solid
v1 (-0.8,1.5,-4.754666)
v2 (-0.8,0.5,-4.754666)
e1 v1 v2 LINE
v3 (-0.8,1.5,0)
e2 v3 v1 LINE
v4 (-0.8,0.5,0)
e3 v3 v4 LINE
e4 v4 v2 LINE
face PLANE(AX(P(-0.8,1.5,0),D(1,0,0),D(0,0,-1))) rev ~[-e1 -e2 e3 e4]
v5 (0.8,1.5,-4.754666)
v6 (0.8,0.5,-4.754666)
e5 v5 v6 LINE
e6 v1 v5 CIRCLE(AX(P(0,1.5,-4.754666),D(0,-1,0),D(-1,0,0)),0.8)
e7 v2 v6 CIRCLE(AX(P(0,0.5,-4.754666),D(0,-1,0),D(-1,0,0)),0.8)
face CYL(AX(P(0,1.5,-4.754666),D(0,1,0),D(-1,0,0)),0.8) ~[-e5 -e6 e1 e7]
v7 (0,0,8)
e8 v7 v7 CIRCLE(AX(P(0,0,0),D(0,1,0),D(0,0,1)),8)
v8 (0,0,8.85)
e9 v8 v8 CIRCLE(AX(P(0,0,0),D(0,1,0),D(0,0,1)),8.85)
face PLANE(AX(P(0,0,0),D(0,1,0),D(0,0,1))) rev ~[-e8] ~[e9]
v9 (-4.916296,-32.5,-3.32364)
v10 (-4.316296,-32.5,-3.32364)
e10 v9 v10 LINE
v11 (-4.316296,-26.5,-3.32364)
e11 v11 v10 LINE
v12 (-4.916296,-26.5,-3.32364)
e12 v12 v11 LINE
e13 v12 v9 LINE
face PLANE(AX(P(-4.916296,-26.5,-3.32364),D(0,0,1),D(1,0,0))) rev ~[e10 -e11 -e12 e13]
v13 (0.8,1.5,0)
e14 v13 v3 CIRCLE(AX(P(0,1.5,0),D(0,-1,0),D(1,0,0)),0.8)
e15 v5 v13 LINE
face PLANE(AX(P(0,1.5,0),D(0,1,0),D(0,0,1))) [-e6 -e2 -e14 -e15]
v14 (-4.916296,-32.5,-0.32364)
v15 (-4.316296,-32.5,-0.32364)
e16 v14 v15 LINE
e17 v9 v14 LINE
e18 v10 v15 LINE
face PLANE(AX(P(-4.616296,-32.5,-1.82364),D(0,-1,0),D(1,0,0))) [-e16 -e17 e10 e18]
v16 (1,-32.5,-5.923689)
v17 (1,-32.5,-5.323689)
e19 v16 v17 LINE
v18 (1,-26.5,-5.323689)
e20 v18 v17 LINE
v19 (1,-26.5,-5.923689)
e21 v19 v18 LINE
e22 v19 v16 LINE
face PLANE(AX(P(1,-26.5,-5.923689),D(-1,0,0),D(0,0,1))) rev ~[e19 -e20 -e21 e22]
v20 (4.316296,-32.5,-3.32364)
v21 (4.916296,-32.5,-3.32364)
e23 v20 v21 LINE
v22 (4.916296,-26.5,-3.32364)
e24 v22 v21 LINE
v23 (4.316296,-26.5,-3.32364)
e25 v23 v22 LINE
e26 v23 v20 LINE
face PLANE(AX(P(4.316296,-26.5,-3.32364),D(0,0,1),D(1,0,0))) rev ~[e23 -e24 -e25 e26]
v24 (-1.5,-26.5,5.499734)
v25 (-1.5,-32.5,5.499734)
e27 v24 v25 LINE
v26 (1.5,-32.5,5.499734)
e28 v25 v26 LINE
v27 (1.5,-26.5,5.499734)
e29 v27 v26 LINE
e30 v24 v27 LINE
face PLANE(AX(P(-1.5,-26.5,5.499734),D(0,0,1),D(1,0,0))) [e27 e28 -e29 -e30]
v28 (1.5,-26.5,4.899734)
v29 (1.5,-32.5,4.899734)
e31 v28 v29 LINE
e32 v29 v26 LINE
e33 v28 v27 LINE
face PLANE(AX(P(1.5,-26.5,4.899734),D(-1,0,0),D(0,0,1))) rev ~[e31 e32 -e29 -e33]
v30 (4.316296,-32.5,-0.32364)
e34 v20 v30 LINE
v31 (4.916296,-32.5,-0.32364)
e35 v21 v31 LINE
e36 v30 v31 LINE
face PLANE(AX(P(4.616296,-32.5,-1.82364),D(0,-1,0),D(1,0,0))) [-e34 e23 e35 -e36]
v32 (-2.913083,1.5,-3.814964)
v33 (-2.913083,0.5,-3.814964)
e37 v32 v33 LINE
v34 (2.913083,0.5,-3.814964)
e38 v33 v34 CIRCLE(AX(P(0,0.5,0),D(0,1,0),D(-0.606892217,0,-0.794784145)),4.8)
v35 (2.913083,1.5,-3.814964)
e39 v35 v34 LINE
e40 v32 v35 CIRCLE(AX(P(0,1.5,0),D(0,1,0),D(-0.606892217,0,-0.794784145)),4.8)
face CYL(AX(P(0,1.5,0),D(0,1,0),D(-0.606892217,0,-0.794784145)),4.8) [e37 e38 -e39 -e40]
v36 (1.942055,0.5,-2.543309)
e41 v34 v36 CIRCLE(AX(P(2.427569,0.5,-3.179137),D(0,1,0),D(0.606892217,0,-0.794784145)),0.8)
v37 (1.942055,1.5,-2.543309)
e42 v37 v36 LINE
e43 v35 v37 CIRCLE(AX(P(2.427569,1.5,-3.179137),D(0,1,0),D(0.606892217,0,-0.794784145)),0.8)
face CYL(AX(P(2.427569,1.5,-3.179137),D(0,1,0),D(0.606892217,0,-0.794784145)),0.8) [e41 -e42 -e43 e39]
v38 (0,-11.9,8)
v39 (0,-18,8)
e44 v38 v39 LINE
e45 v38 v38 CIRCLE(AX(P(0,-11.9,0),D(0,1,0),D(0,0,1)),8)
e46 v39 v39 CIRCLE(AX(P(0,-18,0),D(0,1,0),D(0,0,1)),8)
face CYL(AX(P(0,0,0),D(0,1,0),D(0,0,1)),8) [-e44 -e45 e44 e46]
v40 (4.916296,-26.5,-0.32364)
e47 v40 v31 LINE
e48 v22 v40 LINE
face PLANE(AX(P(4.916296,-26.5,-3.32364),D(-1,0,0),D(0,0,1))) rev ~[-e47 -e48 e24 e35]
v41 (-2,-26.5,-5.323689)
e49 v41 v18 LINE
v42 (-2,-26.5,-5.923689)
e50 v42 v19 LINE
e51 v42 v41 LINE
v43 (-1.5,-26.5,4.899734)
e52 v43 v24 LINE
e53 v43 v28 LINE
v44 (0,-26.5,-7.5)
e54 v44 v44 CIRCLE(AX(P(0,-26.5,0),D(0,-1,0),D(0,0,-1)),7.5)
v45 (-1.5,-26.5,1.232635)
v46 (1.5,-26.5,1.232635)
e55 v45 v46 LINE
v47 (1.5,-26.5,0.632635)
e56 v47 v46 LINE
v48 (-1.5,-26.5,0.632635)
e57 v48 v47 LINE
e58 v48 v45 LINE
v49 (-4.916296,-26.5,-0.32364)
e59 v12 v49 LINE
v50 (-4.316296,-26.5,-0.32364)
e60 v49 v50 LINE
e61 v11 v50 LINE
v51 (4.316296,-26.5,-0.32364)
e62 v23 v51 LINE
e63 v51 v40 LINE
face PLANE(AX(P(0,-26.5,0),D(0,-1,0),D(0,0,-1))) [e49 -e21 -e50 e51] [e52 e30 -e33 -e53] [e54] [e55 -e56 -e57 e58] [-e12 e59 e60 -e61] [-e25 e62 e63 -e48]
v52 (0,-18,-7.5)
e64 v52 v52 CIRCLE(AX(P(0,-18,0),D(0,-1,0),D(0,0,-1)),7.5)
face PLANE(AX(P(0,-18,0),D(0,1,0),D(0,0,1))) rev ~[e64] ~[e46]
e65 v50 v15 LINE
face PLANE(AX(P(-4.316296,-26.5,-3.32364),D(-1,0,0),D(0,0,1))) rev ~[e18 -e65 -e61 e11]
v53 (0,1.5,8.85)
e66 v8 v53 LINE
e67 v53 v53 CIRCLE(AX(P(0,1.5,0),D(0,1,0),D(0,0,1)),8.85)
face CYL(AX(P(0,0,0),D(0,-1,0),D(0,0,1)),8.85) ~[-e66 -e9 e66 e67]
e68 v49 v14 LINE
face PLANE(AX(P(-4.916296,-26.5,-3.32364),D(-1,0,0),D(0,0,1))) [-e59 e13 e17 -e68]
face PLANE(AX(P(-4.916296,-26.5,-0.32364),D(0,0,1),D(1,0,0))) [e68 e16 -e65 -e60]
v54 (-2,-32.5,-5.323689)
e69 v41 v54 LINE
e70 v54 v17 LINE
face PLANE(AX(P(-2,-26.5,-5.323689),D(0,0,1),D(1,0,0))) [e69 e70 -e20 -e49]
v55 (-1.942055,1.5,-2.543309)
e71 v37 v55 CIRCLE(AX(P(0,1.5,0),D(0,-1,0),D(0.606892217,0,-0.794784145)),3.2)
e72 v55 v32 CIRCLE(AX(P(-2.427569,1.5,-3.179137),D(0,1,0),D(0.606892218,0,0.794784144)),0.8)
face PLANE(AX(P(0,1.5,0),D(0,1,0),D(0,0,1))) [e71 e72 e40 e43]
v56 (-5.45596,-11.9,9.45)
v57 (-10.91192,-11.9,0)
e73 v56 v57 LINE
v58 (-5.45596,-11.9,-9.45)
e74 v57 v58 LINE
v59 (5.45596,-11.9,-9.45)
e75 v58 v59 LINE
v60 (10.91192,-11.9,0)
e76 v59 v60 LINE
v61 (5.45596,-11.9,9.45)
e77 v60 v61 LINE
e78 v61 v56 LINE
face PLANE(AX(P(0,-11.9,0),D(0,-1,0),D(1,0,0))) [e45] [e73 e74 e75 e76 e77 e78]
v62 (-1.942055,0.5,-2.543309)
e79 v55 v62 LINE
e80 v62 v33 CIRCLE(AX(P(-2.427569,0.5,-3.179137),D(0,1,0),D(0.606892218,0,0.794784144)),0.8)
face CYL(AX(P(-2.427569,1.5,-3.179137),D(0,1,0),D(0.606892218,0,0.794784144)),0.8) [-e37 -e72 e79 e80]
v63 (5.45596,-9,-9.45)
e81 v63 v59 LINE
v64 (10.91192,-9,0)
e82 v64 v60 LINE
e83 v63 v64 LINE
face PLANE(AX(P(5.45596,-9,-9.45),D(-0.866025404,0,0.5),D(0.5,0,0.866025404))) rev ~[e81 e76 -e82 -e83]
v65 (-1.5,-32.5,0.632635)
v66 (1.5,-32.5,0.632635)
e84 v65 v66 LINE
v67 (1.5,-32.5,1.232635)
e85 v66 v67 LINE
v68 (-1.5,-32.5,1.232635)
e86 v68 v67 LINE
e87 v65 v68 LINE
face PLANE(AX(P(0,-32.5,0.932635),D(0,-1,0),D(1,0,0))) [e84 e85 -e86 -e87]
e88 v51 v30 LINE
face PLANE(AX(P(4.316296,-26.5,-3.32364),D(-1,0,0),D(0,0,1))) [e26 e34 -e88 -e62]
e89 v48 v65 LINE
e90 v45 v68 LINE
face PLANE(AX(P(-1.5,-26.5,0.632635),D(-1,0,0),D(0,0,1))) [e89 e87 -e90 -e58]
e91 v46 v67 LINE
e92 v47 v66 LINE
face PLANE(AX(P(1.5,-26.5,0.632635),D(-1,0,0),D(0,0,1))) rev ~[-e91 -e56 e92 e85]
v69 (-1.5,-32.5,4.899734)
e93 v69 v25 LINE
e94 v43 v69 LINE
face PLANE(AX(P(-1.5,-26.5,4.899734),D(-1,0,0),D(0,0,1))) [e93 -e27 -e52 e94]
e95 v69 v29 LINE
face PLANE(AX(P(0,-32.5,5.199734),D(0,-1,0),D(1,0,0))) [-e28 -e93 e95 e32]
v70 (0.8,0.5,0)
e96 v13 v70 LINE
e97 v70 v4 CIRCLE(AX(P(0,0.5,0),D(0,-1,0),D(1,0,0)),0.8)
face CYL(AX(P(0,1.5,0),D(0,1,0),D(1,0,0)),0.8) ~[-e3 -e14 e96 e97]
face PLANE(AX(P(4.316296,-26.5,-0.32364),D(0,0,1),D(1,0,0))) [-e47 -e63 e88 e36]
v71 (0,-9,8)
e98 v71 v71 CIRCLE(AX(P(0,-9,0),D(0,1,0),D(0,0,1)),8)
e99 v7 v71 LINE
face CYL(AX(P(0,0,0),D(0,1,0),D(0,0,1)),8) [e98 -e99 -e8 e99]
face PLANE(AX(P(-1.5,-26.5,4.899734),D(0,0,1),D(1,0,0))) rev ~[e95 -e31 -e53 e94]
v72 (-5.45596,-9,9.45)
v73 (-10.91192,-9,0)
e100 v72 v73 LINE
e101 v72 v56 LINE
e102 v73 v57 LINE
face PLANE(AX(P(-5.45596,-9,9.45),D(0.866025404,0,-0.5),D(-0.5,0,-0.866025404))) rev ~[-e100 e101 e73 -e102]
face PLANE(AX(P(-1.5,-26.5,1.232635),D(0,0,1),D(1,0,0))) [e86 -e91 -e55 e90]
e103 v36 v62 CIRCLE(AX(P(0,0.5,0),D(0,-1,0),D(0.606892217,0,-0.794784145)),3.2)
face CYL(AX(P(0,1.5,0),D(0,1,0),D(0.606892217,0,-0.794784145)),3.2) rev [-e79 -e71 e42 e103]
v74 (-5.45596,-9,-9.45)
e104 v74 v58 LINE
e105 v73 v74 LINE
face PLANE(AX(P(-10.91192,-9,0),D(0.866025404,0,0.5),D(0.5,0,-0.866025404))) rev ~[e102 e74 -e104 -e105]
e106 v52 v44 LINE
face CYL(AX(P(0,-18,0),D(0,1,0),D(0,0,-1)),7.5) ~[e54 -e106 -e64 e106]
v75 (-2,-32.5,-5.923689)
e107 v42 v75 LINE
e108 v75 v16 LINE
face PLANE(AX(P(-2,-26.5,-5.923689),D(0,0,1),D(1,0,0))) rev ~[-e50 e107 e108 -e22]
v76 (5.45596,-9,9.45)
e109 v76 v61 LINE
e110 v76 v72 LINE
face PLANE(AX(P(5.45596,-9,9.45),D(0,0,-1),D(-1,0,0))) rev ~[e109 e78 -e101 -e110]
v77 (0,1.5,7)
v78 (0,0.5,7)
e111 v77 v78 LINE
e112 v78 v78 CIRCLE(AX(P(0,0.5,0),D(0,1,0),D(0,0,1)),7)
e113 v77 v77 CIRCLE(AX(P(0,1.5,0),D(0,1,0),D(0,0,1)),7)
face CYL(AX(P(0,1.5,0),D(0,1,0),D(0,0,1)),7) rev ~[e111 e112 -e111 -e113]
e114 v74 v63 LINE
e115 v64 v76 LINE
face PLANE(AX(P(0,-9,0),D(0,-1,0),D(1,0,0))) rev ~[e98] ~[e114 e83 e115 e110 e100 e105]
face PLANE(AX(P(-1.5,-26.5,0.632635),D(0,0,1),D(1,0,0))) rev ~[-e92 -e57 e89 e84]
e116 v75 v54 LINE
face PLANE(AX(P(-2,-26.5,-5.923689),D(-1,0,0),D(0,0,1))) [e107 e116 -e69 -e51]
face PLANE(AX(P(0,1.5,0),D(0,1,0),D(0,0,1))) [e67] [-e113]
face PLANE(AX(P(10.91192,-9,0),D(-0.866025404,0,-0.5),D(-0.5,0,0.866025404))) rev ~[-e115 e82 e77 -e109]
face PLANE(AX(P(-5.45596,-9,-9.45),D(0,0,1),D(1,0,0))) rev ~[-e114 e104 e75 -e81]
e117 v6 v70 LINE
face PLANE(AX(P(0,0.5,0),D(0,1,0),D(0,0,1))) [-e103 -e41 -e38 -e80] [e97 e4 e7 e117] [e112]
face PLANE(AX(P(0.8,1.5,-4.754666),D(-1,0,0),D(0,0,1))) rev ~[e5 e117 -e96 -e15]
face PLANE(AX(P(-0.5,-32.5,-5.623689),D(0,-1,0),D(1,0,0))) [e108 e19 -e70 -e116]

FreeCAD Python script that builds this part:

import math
import FreeCAD as App
import Part
import Sketcher

V = App.Vector
Q = App.Units.Quantity

doc = App.newDocument("Part")
params = doc.addObject("Spreadsheet::Sheet", "Params")
for row, (alias, value) in enumerate([
    ("sketch1_diameter", "16 mm"),
    ("pad1_length", "18 mm"),
    ("sketch2_diameter", "17.7 mm"),
    ("pad2_length", "1.5 mm"),
    ("sketch3_diameter", "14 mm"),
    ("sketch3_radius", "0.8 mm"),
    ("sketch3_radius2", "4.8 mm"),
    ("pocket1_length", "1 mm"),
    ("sketch4_diameter", "15 mm"),
    ("pad3_length", "8.5 mm"),
    ("sketch5_width", "3 mm"),
    ("sketch5_width2", "0.6 mm"),
    ("pad4_length", "6 mm"),
    ("pad5_length", "2.9 mm"),
], start=1):
    params.set(f"A{row}", alias)
    params.set(f"B{row}", "=" + value)
    params.setAlias(f"B{row}", alias)

body = doc.addObject("PartDesign::Body", "Body")

# Sketch on XZ plane
sketch1 = body.newObject("Sketcher::SketchObject", "Sketch")
sketch1.AttachmentSupport = (doc.getObject("XZ_Plane"), [""])
sketch1.MapMode = "FlatFace"
sketch1.addGeometry(Part.Circle(V(0, 0, 0), V(0, 0, 1), 8), False)
sketch1.addConstraint([
    Sketcher.Constraint("Coincident", 0, 3, -1, 1),
    Sketcher.Constraint("Diameter", 0, 16.0),
])
sketch1.setExpression("Constraints[1]", "Params.sketch1_diameter")
pad1 = body.newObject("PartDesign::Pad", "Pad")
pad1.Profile = sketch1
pad1.setExpression("Length", "Params.pad1_length")

# Sketch on XZ plane
sketch2 = body.newObject("Sketcher::SketchObject", "Sketch001")
sketch2.AttachmentSupport = (doc.getObject("XZ_Plane"), [""])
sketch2.MapMode = "FlatFace"
sketch2.addGeometry(Part.Circle(V(0, 0, 0), V(0, 0, 1), 9), False)
sketch2.addConstraint([
    Sketcher.Constraint("Coincident", 0, 3, -1, 1),
    Sketcher.Constraint("Diameter", 0, 17.7),
])
sketch2.setExpression("Constraints[1]", "Params.sketch2_diameter")
pad2 = body.newObject("PartDesign::Pad", "Pad001")
pad2.Profile = sketch2
pad2.setExpression("Length", "Params.pad2_length")
pad2.Reversed = True

# Sketch on XZ plane
sketch3 = body.newObject("Sketcher::SketchObject", "Sketch002")
sketch3.AttachmentSupport = (doc.getObject("XZ_Plane"), [""])
sketch3.MapMode = "FlatFace"
sketch3.AttachmentOffset = App.Placement(V(0, 0, -1.5), App.Rotation())
sketch3.addGeometry([
    Part.Circle(V(0, 0, 0), V(0, 0, 1), 7),  # 0
    Part.ArcOfCircle(Part.Circle(V(0, 0, 0), V(0, 0, 1), 0.8), math.radians(0), math.radians(180)),  # 1
    Part.LineSegment(V(-0.8, 0, 0), V(-0.8, -4.8, 0)),  # 2
    Part.ArcOfCircle(Part.Circle(V(0, -4.8, 0), V(0, 0, 1), 0.8), math.radians(180), math.radians(360)),  # 3
    Part.LineSegment(V(0.8, -4.8, 0), V(0.8, 0, 0)),  # 4
    Part.ArcOfCircle(Part.Circle(V(0, 0, 0), V(0, 0, 1), 4.8), math.radians(-53), math.radians(233)),  # 5
    Part.ArcOfCircle(Part.Circle(V(-2.4, -3.2, 0), V(0, 0, 1), 0.8), math.radians(-127), math.radians(53)),  # 6
    Part.ArcOfCircle(Part.Circle(V(0, 0, 0), V(0, 0, 1), 3.2), math.radians(-53), math.radians(233)),  # 7
    Part.ArcOfCircle(Part.Circle(V(2.4, -3.2, 0), V(0, 0, 1), 0.8), math.radians(127), math.radians(307)),  # 8
], False)
sketch3.addConstraint([
    Sketcher.Constraint("Tangent", 1, 2, 2, 1),
    Sketcher.Constraint("Tangent", 2, 2, 3, 1),
    Sketcher.Constraint("Tangent", 3, 2, 4, 1),
    Sketcher.Constraint("Tangent", 4, 2, 1, 1),
    Sketcher.Constraint("Tangent", 5, 2, 6, 1),
    Sketcher.Constraint("Tangent", 6, 2, 7, 2),
    Sketcher.Constraint("Tangent", 7, 1, 8, 1),
    Sketcher.Constraint("Tangent", 8, 2, 5, 1),
    Sketcher.Constraint("Vertical", 2),
    Sketcher.Constraint("Vertical", 4),
    Sketcher.Constraint("Coincident", 0, 3, -1, 1),
    Sketcher.Constraint("Coincident", 1, 3, -1, 1),
    Sketcher.Constraint("Coincident", 5, 3, -1, 1),
    Sketcher.Constraint("Coincident", 7, 3, -1, 1),
    Sketcher.Constraint("Equal", 3, 6),
    Sketcher.Constraint("Horizontal", 6, 3, 8, 3),
    Sketcher.Constraint("Diameter", 0, 14.0),
    Sketcher.Constraint("Radius", 1, 0.8),
    Sketcher.Constraint("Radius", 5, 4.8),
    Sketcher.Constraint("DistanceY", 2, 2, 2, 1, 4.754666),
    Sketcher.Constraint("DistanceX", 6, 3, -1, 1, 2.427569),
])
sketch3.setExpression("Constraints[16]", "Params.sketch3_diameter")
sketch3.setExpression("Constraints[17]", "Params.sketch3_radius")
sketch3.setExpression("Constraints[18]", "Params.sketch3_radius2")
pocket1 = body.newObject("PartDesign::Pocket", "Pocket")
pocket1.Profile = sketch3
pocket1.setExpression("Length", "Params.pocket1_length")
pocket1.Reversed = True

# Sketch on XZ plane
sketch4 = body.newObject("Sketcher::SketchObject", "Sketch003")
sketch4.AttachmentSupport = (doc.getObject("XZ_Plane"), [""])
sketch4.MapMode = "FlatFace"
sketch4.AttachmentOffset = App.Placement(V(0, 0, 18), App.Rotation())
sketch4.addGeometry(Part.Circle(V(0, 0, 0), V(0, 0, 1), 8), False)
sketch4.addConstraint([
    Sketcher.Constraint("Coincident", 0, 3, -1, 1),
    Sketcher.Constraint("Diameter", 0, 15.0),
])
sketch4.setExpression("Constraints[1]", "Params.sketch4_diameter")
pad3 = body.newObject("PartDesign::Pad", "Pad002")
pad3.Profile = sketch4
pad3.setExpression("Length", "Params.pad3_length")

# Sketch on XZ plane
sketch5 = body.newObject("Sketcher::SketchObject", "Sketch004")
sketch5.AttachmentSupport = (doc.getObject("XZ_Plane"), [""])
sketch5.MapMode = "FlatFace"
sketch5.AttachmentOffset = App.Placement(V(0, 0, 26.5), App.Rotation())
sketch5.addGeometry([
    Part.LineSegment(V(-4.9, -0.3, 0), V(-4.9, -3.3, 0)),  # 0
    Part.LineSegment(V(-4.9, -3.3, 0), V(-4.3, -3.3, 0)),  # 1
    Part.LineSegment(V(-4.3, -3.3, 0), V(-4.3, -0.3, 0)),  # 2
    Part.LineSegment(V(-4.3, -0.3, 0), V(-4.9, -0.3, 0)),  # 3
    Part.LineSegment(V(-1.5, 5.5, 0), V(-1.5, 4.9, 0)),  # 4
    Part.LineSegment(V(-1.5, 4.9, 0), V(1.5, 4.9, 0)),  # 5
    Part.LineSegment(V(1.5, 4.9, 0), V(1.5, 5.5, 0)),  # 6
    Part.LineSegment(V(1.5, 5.5, 0), V(-1.5, 5.5, 0)),  # 7
    Part.LineSegment(V(4.3, -0.3, 0), V(4.3, -3.3, 0)),  # 8
    Part.LineSegment(V(4.3, -3.3, 0), V(4.9, -3.3, 0)),  # 9
    Part.LineSegment(V(4.9, -3.3, 0), V(4.9, -0.3, 0)),  # 10
    Part.LineSegment(V(4.9, -0.3, 0), V(4.3, -0.3, 0)),  # 11
    Part.LineSegment(V(-1.5, 1.2, 0), V(-1.5, 0.6, 0)),  # 12
    Part.LineSegment(V(-1.5, 0.6, 0), V(1.5, 0.6, 0)),  # 13
    Part.LineSegment(V(1.5, 0.6, 0), V(1.5, 1.2, 0)),  # 14
    Part.LineSegment(V(1.5, 1.2, 0), V(-1.5, 1.2, 0)),  # 15
    Part.LineSegment(V(-2, -5.3, 0), V(-2, -5.9, 0)),  # 16
    Part.LineSegment(V(-2, -5.9, 0), V(1, -5.9, 0)),  # 17
    Part.LineSegment(V(1, -5.9, 0), V(1, -5.3, 0)),  # 18
    Part.LineSegment(V(1, -5.3, 0), V(-2, -5.3, 0)),  # 19
], False)
sketch5.addConstraint([
    Sketcher.Constraint("Coincident", 0, 2, 1, 1),
    Sketcher.Constraint("Coincident", 1, 2, 2, 1),
    Sketcher.Constraint("Coincident", 2, 2, 3, 1),
    Sketcher.Constraint("Coincident", 3, 2, 0, 1),
    Sketcher.Constraint("Coincident", 4, 2, 5, 1),
    Sketcher.Constraint("Coincident", 5, 2, 6, 1),
    Sketcher.Constraint("Coincident", 6, 2, 7, 1),
    Sketcher.Constraint("Coincident", 7, 2, 4, 1),
    Sketcher.Constraint("Coincident", 8, 2, 9, 1),
    Sketcher.Constraint("Coincident", 9, 2, 10, 1),
    Sketcher.Constraint("Coincident", 10, 2, 11, 1),
    Sketcher.Constraint("Coincident", 11, 2, 8, 1),
    Sketcher.Constraint("Coincident", 12, 2, 13, 1),
    Sketcher.Constraint("Coincident", 13, 2, 14, 1),
    Sketcher.Constraint("Coincident", 14, 2, 15, 1),
    Sketcher.Constraint("Coincident", 15, 2, 12, 1),
    Sketcher.Constraint("Coincident", 16, 2, 17, 1),
    Sketcher.Constraint("Coincident", 17, 2, 18, 1),
    Sketcher.Constraint("Coincident", 18, 2, 19, 1),
    Sketcher.Constraint("Coincident", 19, 2, 16, 1),
    Sketcher.Constraint("Vertical", 0),
    Sketcher.Constraint("Horizontal", 1),
    Sketcher.Constraint("Vertical", 2),
    Sketcher.Constraint("Horizontal", 3),
    Sketcher.Constraint("Vertical", 4),
    Sketcher.Constraint("Horizontal", 5),
    Sketcher.Constraint("Vertical", 6),
    Sketcher.Constraint("Horizontal", 7),
    Sketcher.Constraint("Vertical", 8),
    Sketcher.Constraint("Horizontal", 9),
    Sketcher.Constraint("Vertical", 10),
    Sketcher.Constraint("Horizontal", 11),
    Sketcher.Constraint("Vertical", 12),
    Sketcher.Constraint("Horizontal", 13),
    Sketcher.Constraint("Vertical", 14),
    Sketcher.Constraint("Horizontal", 15),
    Sketcher.Constraint("Vertical", 16),
    Sketcher.Constraint("Horizontal", 17),
    Sketcher.Constraint("Vertical", 18),
    Sketcher.Constraint("Horizontal", 19),
    Sketcher.Constraint("Symmetric", 1, 2, 8, 2, -2),
    Sketcher.Constraint("Symmetric", 3, 2, 10, 2, -2),
    Sketcher.Constraint("Vertical", 7, 2, 12, 2),
    Sketcher.Constraint("Vertical", 6, 2, 13, 2),
    Sketcher.Constraint("Equal", 15, 17),
    Sketcher.Constraint("Equal", 19, 0),
    Sketcher.Constraint("Equal", 11, 4),
    Sketcher.Constraint("Equal", 6, 12),
    Sketcher.Constraint("Equal", 14, 16),
    Sketcher.Constraint("DistanceX", 5, 1, 5, 2, 3.0),
    Sketcher.Constraint("DistanceX", 1, 1, 1, 2, 0.6),
    Sketcher.Constraint("DistanceX", 16, 2, -1, 1, 2.0),
    Sketcher.Constraint("DistanceX", 4, 2, -1, 1, 1.5),
    Sketcher.Constraint("DistanceY", 12, 2, 4, 2, 4.267099),
    Sketcher.Constraint("DistanceY", 0, 2, -1, 1, 3.32364),
    Sketcher.Constraint("DistanceY", 16, 2, -1, 1, 5.923689),
    Sketcher.Constraint("DistanceX", 0, 2, -1, 1, 4.916296),
    Sketcher.Constraint("DistanceY", -1, 1, 4, 2, 4.899734),
])
sketch5.setExpression("Constraints[49]", "Params.sketch5_width")
sketch5.setExpression("Constraints[50]", "Params.sketch5_width2")
pad4 = body.newObject("PartDesign::Pad", "Pad003")
pad4.Profile = sketch5
pad4.setExpression("Length", "Params.pad4_length")

# Sketch on XZ plane
sketch6 = body.newObject("Sketcher::SketchObject", "Sketch005")
sketch6.AttachmentSupport = (doc.getObject("XZ_Plane"), [""])
sketch6.MapMode = "FlatFace"
sketch6.AttachmentOffset = App.Placement(V(0, 0, 9), App.Rotation())
sketch6.addGeometry([
    Part.LineSegment(V(11, 0, 0), V(5, 9, 0)),  # 0
    Part.LineSegment(V(5, 9, 0), V(-5, 9, 0)),  # 1
    Part.LineSegment(V(-5, 9, 0), V(-11, 0, 0)),  # 2
    Part.LineSegment(V(-11, 0, 0), V(-5, -9, 0)),  # 3
    Part.LineSegment(V(-5, -9, 0), V(5, -9, 0)),  # 4
    Part.LineSegment(V(5, -9, 0), V(11, 0, 0)),  # 5
], False)
sketch6.addConstraint([
    Sketcher.Constraint("Coincident", 0, 2, 1, 1),
    Sketcher.Constraint("Coincident", 1, 2, 2, 1),
    Sketcher.Constraint("Coincident", 2, 2, 3, 1),
    Sketcher.Constraint("Coincident", 3, 2, 4, 1),
    Sketcher.Constraint("Coincident", 4, 2, 5, 1),
    Sketcher.Constraint("Coincident", 5, 2, 0, 1),
    Sketcher.Constraint("Horizontal", 1),
    Sketcher.Constraint("Horizontal", 4),
    Sketcher.Constraint("Symmetric", 0, 2, 3, 2, -1, 1),
    Sketcher.Constraint("Symmetric", 2, 2, 5, 2, -1, 1),
    Sketcher.Constraint("PointOnObject", 2, 2, -1),
    Sketcher.Constraint("Parallel", 2, 5),
    Sketcher.Constraint("Vertical", 1, 2, 3, 2),
    Sketcher.Constraint("Angle", 0, Q("120 deg")),
    Sketcher.Constraint("DistanceY", 3, 2, 1, 2, 18.9),
    Sketcher.Constraint("DistanceX", 1, 2, 1, 1, 10.91192),
])
pad5 = body.newObject("PartDesign::Pad", "Pad004")
pad5.Profile = sketch6
pad5.setExpression("Length", "Params.pad5_length")

doc.recompute()
